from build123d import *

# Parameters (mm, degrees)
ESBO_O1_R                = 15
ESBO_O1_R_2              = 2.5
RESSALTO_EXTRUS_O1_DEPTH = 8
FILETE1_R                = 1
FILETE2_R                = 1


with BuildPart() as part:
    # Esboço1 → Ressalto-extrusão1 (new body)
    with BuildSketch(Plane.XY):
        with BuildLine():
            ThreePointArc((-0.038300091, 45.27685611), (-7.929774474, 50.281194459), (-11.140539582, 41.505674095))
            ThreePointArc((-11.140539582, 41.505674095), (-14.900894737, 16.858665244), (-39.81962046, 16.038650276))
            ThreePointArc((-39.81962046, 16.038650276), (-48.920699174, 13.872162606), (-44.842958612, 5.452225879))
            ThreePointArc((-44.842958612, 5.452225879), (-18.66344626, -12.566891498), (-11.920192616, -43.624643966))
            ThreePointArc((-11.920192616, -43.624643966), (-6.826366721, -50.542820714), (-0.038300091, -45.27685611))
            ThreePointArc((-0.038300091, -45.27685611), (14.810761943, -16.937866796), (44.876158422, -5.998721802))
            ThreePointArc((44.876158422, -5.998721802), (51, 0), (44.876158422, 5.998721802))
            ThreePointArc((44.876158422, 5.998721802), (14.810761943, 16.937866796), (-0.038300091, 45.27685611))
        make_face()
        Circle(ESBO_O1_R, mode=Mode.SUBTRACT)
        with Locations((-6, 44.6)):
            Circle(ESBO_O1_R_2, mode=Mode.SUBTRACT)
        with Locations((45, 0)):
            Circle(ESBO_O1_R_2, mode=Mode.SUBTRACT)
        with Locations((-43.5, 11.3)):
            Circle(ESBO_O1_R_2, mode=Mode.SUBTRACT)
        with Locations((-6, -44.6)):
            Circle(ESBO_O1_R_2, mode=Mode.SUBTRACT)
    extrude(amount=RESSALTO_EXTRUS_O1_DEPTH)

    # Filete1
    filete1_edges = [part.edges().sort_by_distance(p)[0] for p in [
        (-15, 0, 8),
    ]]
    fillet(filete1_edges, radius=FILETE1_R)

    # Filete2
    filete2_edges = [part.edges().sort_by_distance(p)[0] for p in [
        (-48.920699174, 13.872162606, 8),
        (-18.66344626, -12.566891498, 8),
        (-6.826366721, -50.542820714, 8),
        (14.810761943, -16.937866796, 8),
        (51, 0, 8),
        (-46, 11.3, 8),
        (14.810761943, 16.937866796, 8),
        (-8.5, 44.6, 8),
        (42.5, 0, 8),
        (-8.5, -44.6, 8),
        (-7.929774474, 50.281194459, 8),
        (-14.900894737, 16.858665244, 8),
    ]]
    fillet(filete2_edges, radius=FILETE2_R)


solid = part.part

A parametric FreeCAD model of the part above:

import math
import FreeCAD as App
import Part
import Sketcher

V = App.Vector


def edges_at(feature, points):
    """Names of the edges that pass closest to the given points."""
    edges = feature.Shape.Edges
    near = lambda p: min(range(len(edges)), key=lambda i: edges[i].distToShape(Part.Vertex(*p))[0])
    return sorted({f"Edge{near(p) + 1}" for p in points})

doc = App.newDocument("Part")
body = doc.addObject("PartDesign::Body", "Body")

# Sketch on XY plane
sketch1 = doc.addObject("Sketcher::SketchObject", "Sketch")
body.addObject(sketch1)
sketch1.AttachmentSupport = (doc.XY_Plane, [""])
sketch1.MapMode = "FlatFace"
sketch1.addGeometry(Part.ArcOfCircle(Part.Circle(V(-6, 44.6, 0), V(0, 0, 1), 6), math.radians(6), math.radians(211)), False)
sketch1.addGeometry(Part.ArcOfCircle(Part.Circle(V(-27.9, 31.4, 0), V(0, 0, 1), 19.5), math.radians(-128), math.radians(31)), False)
sketch1.addGeometry(Part.ArcOfCircle(Part.Circle(V(-43.5, 11.3, 0), V(0, 0, 1), 6), math.radians(52), math.radians(257)), False)
sketch1.addGeometry(Part.ArcOfCircle(Part.Circle(V(-54.5, -36.6, 0), V(0, 0, 1), 43.2), math.radians(-9), math.radians(77)), False)
sketch1.addGeometry(Part.ArcOfCircle(Part.Circle(V(-6, -44.6, 0), V(0, 0, 1), 6), math.radians(171), math.radians(354)), False)
sketch1.addGeometry(Part.ArcOfCircle(Part.Circle(V(44, -50.3, 0), V(0, 0, 1), 44.3), math.radians(89), math.radians(174)), False)
sketch1.addGeometry(Part.ArcOfCircle(Part.Circle(V(45, 0, 0), V(0, 0, 1), 6), math.radians(-91), math.radians(91)), False)
sketch1.addGeometry(Part.ArcOfCircle(Part.Circle(V(44, 50.3, 0), V(0, 0, 1), 44.3), math.radians(-174), math.radians(-89)), False)
sketch1.addGeometry(Part.Circle(V(-6, -44.6, 0), V(0, 0, 1), 2.5), False)
sketch1.addGeometry(Part.Circle(V(-43.5, 11.3, 0), V(0, 0, 1), 2.5), False)
sketch1.addGeometry(Part.Circle(V(0, 0, 0), V(0, 0, 1), 15), False)
sketch1.addGeometry(Part.Circle(V(-6, 44.6, 0), V(0, 0, 1), 2.5), False)
sketch1.addGeometry(Part.Circle(V(45, 0, 0), V(0, 0, 1), 2.5), False)
sketch1.addConstraint(Sketcher.Constraint("Tangent", 0, 2, 1, 2))
sketch1.addConstraint(Sketcher.Constraint("Tangent", 1, 1, 2, 1))
sketch1.addConstraint(Sketcher.Constraint("Tangent", 2, 2, 3, 2))
sketch1.addConstraint(Sketcher.Constraint("Tangent", 3, 1, 4, 1))
sketch1.addConstraint(Sketcher.Constraint("Tangent", 4, 2, 5, 2))
sketch1.addConstraint(Sketcher.Constraint("Tangent", 5, 1, 6, 1))
sketch1.addConstraint(Sketcher.Constraint("Tangent", 6, 2, 7, 2))
sketch1.addConstraint(Sketcher.Constraint("Tangent", 7, 1, 0, 1))
sketch1.addConstraint(Sketcher.Constraint("Coincident", 10, 3, -1, 1))
sketch1.addConstraint(Sketcher.Constraint("Coincident", 8, 3, 4, 3))
sketch1.addConstraint(Sketcher.Constraint("Coincident", 9, 3, 2, 3))
sketch1.addConstraint(Sketcher.Constraint("Coincident", 11, 3, 0, 3))
sketch1.addConstraint(Sketcher.Constraint("Coincident", 12, 3, 6, 3))
sketch1.addConstraint(Sketcher.Constraint("Equal", 0, 2))
sketch1.addConstraint(Sketcher.Constraint("Equal", 2, 4))
sketch1.addConstraint(Sketcher.Constraint("Equal", 4, 6))
sketch1.addConstraint(Sketcher.Constraint("Equal", 5, 7))
sketch1.addConstraint(Sketcher.Constraint("Equal", 8, 9))
sketch1.addConstraint(Sketcher.Constraint("Equal", 9, 11))
sketch1.addConstraint(Sketcher.Constraint("Equal", 11, 12))
sketch1.addConstraint(Sketcher.Constraint("Symmetric", 0, 3, 4, 3, -1))
sketch1.addConstraint(Sketcher.Constraint("PointOnObject", 6, 3, -1))
sketch1.addConstraint(Sketcher.Constraint("Diameter", 8, 5.0))
sketch1.addConstraint(Sketcher.Constraint("Diameter", 10, 30.0))
sketch1.addConstraint(Sketcher.Constraint("Radius", 0, 6.0))
sketch1.addConstraint(Sketcher.Constraint("DistanceX", 0, 3, -1, 1, 6.0))
sketch1.addConstraint(Sketcher.Constraint("DistanceX", -1, 1, 6, 3, 45.0))
sketch1.addConstraint(Sketcher.Constraint("DistanceY", -1, 1, 0, 3, 44.6))
sketch1.addConstraint(Sketcher.Constraint("DistanceX", 2, 3, -1, 1, 43.5))
sketch1.addConstraint(Sketcher.Constraint("DistanceY", -1, 1, 2, 3, 11.3))
sketch1.addConstraint(Sketcher.Constraint("Radius", 1, 19.507546))
sketch1.addConstraint(Sketcher.Constraint("Radius", 3, 43.156324))
sketch1.addConstraint(Sketcher.Constraint("Radius", 5, 44.283118))
pad1 = doc.addObject("PartDesign::Pad", "Pad")
body.addObject(pad1)
pad1.Profile = sketch1
pad1.Length = 8
doc.recompute()

fillet = doc.addObject("PartDesign::Fillet", "Fillet")
body.addObject(fillet)
fillet.Base = (pad1, edges_at(pad1, [(-15, 0, 8)]))
fillet.Radius = 1
doc.recompute()

fillet2 = doc.addObject("PartDesign::Fillet", "Fillet001")
body.addObject(fillet2)
fillet2.Base = (fillet, edges_at(fillet, [
    (-48.921, 13.872, 8),
    (-18.663, -12.567, 8),
    (-6.826, -50.543, 8),
    (14.811, -16.938, 8),
    (51, 0, 8),
    (-46, 11.3, 8),
    (14.811, 16.938, 8),
    (-8.5, 44.6, 8),
    (42.5, 0, 8),
    (-8.5, -44.6, 8),
    (-7.93, 50.281, 8),
    (-14.901, 16.859, 8),
]))
fillet2.Radius = 1

doc.recompute()
